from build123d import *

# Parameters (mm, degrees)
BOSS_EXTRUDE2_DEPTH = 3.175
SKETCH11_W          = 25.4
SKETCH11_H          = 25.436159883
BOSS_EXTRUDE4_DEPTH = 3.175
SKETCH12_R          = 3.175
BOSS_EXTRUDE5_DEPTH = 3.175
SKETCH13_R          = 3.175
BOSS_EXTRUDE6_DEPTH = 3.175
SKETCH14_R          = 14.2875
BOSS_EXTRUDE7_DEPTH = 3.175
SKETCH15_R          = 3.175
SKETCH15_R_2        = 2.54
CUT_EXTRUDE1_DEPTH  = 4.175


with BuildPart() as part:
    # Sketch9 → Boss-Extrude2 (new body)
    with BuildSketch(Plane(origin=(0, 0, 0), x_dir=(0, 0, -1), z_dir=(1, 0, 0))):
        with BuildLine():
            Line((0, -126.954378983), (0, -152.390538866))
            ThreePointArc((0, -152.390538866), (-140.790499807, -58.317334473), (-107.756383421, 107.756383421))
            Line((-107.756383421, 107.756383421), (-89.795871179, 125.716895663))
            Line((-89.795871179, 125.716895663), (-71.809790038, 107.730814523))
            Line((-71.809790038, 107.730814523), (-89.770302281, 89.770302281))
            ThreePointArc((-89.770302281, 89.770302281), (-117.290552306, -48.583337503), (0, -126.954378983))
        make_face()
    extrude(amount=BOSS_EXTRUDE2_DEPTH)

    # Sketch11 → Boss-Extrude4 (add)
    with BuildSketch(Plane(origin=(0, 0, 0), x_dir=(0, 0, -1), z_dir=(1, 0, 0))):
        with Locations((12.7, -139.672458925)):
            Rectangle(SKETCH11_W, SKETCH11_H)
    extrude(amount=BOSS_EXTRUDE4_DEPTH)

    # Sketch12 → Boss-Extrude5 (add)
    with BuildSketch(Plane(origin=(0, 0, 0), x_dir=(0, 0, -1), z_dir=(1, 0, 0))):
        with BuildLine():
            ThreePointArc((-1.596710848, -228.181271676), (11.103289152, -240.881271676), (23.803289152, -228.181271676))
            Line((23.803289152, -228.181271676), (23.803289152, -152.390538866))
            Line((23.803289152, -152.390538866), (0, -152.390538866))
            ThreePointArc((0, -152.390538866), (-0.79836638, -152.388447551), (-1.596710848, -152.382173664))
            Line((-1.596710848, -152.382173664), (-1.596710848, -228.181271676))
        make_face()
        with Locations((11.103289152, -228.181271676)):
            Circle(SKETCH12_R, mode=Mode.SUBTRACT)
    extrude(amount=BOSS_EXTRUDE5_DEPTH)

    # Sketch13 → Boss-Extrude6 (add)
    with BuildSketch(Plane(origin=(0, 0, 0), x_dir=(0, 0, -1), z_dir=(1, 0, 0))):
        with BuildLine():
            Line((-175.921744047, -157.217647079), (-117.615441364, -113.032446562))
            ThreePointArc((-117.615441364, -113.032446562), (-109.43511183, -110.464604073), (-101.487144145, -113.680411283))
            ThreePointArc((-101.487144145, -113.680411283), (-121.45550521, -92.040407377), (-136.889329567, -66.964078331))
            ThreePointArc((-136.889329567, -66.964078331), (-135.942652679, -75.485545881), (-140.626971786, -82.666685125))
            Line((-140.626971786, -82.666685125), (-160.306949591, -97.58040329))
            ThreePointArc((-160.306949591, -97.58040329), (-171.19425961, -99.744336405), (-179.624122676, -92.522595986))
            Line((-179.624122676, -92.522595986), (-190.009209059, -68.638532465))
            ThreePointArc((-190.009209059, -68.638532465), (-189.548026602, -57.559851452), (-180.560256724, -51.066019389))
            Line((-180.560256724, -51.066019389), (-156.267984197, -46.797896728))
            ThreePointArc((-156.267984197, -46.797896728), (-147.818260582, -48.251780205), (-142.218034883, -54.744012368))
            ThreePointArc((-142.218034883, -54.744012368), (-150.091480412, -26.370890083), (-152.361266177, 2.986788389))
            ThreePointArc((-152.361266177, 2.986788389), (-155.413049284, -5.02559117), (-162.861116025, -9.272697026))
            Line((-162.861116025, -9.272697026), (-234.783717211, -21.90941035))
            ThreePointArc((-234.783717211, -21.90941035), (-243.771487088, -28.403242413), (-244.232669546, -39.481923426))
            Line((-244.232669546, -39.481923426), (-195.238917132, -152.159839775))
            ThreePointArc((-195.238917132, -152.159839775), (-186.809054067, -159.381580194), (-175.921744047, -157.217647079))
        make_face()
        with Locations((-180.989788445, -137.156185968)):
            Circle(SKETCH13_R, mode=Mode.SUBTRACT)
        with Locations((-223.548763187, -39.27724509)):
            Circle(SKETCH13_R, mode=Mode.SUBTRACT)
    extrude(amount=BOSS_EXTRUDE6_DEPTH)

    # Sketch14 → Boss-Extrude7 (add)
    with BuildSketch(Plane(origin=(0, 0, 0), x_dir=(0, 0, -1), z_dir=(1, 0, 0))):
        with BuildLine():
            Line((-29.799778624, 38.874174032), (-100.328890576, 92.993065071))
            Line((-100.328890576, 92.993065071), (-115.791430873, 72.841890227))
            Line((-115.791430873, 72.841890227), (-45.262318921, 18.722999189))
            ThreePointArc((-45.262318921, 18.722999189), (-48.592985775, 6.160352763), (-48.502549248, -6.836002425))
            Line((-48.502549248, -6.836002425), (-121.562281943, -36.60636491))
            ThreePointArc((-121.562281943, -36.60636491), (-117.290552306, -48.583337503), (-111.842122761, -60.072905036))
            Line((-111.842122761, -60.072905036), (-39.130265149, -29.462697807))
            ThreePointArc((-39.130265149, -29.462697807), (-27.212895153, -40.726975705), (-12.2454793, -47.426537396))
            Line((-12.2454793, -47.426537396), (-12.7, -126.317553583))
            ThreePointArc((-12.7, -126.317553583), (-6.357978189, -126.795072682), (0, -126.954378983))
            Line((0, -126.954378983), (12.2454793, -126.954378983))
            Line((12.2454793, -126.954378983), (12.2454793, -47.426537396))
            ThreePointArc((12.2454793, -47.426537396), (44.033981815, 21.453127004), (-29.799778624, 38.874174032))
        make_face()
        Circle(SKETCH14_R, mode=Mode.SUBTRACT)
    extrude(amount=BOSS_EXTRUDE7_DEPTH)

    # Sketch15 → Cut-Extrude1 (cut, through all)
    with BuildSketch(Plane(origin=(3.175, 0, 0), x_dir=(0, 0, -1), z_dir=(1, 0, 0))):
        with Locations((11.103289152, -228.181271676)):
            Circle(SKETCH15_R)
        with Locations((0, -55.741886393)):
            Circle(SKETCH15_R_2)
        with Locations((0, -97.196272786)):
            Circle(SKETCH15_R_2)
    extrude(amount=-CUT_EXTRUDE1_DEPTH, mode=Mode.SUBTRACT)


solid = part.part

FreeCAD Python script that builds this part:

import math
import FreeCAD as App
import Part
import Sketcher
from FreeCAD import Vector
Q = App.Units.Quantity


def add_polygon(sketch, points):
    """Adds a closed chain of lines whose ends are joined by coincident constraints."""
    first, n = sketch.GeometryCount, len(points)
    for a, b in zip(points, points[1:] + points[:1]):
        sketch.addGeometry(Part.LineSegment(App.Vector(*a, 0), App.Vector(*b, 0)), False)
    for i in range(n):
        sketch.addConstraint(Sketcher.Constraint("Coincident", first + i, 2, first + (i + 1) % n, 1))

doc = App.newDocument("Part")
body = doc.addObject("PartDesign::Body", "Body")

# Sketch on YZ plane
sketch1 = body.newObject("Sketcher::SketchObject", "Sketch")
sketch1.AttachmentSupport = (doc.getObject("YZ_Plane"), [""])
sketch1.MapMode = "FlatFace"
sketch1.addGeometry([
    Part.LineSegment(Vector(-152, 0, 0), Vector(-127, 0, 0)),  # 0
    Part.ArcOfCircle(Part.Circle(Vector(0, 0, 0), Vector(0, 0, 1), 127), math.radians(45), math.radians(180)),  # 1
    Part.LineSegment(Vector(90, 90, 0), Vector(108, 72, 0)),  # 2
    Part.LineSegment(Vector(108, 72, 0), Vector(126, 90, 0)),  # 3
    Part.LineSegment(Vector(126, 90, 0), Vector(108, 108, 0)),  # 4
    Part.ArcOfCircle(Part.Circle(Vector(0, 0, 0), Vector(0, 0, 1), 152), math.radians(45), math.radians(180)),  # 5
], False)
sketch1.addConstraint([
    Sketcher.Constraint("Coincident", 0, 2, 1, 2),
    Sketcher.Constraint("Tangent", 1, 1, 2, 1),
    Sketcher.Constraint("Coincident", 2, 2, 3, 1),
    Sketcher.Constraint("Coincident", 3, 2, 4, 1),
    Sketcher.Constraint("Tangent", 4, 2, 5, 1),
    Sketcher.Constraint("Coincident", 5, 2, 0, 1),
    Sketcher.Constraint("Horizontal", 0),
    Sketcher.Constraint("Coincident", 1, 3, -1, 1),
    Sketcher.Constraint("Coincident", 5, 3, -1, 1),
    Sketcher.Constraint("PointOnObject", 0, 2, -1),
    Sketcher.Constraint("Perpendicular", 2, 3),
    Sketcher.Constraint("Perpendicular", 3, 4),
    Sketcher.Constraint("Distance", 2, Q("1 in")),
    Sketcher.Constraint("Angle", 2, Q("-45 deg")),
    Sketcher.Constraint("Radius", 1, 126.954379),
    Sketcher.Constraint("Radius", 5, 152.390539),
])
pad1 = body.newObject("PartDesign::Pad", "Pad")
pad1.Profile = sketch1
pad1.Length = Q("0.125 in")

# Sketch on YZ plane
sketch2 = body.newObject("Sketcher::SketchObject", "Sketch001")
sketch2.AttachmentSupport = (doc.getObject("YZ_Plane"), [""])
sketch2.MapMode = "FlatFace"
add_polygon(sketch2, [(-127, 0), (-152, 0), (-152, -25), (-127, -25)])  # lines 0-3
sketch2.addConstraint([
    Sketcher.Constraint("Horizontal", 0),
    Sketcher.Constraint("Vertical", 1),
    Sketcher.Constraint("Horizontal", 2),
    Sketcher.Constraint("Vertical", 3),
    Sketcher.Constraint("PointOnObject", 0, 2, -1),
    Sketcher.Constraint("DistanceY", 1, 2, 1, 1, Q("1 in")),
    Sketcher.Constraint("DistanceX", 0, 2, 0, 1, 25.43616),
    Sketcher.Constraint("DistanceX", 0, 2, -1, 1, 152.390539),
])
pad2 = body.newObject("PartDesign::Pad", "Pad001")
pad2.Profile = sketch2
pad2.Length = Q("0.125 in")

# Sketch on YZ plane
sketch3 = body.newObject("Sketcher::SketchObject", "Sketch002")
sketch3.AttachmentSupport = (doc.getObject("YZ_Plane"), [""])
sketch3.MapMode = "FlatFace"
sketch3.addGeometry([
    Part.ArcOfCircle(Part.Circle(Vector(-228.2, -11.1, 0), Vector(0, 0, 1), 12.7), math.radians(90), math.radians(270)),  # 0
    Part.LineSegment(Vector(-228.2, -23.8, 0), Vector(-152.4, -23.8, 0)),  # 1
    Part.LineSegment(Vector(-152.4, -23.8, 0), Vector(-152.4, 0, 0)),  # 2
    Part.ArcOfCircle(Part.Circle(Vector(0, 0, 0), Vector(0, 0, 1), 152.4), math.radians(179.4), math.radians(180)),  # 3
    Part.LineSegment(Vector(-152.4, 1.6, 0), Vector(-228.2, 1.6, 0)),  # 4
    Part.Circle(Vector(-228.2, -11.1, 0), Vector(0, 0, 1), 3.2),  # 5
], False)
sketch3.addConstraint([
    Sketcher.Constraint("Tangent", 0, 2, 1, 1),
    Sketcher.Constraint("Coincident", 1, 2, 2, 1),
    Sketcher.Constraint("Tangent", 2, 2, 3, 2),
    Sketcher.Constraint("Coincident", 3, 1, 4, 1),
    Sketcher.Constraint("Tangent", 4, 2, 0, 1),
    Sketcher.Constraint("Horizontal", 1),
    Sketcher.Constraint("Vertical", 2),
    Sketcher.Constraint("Horizontal", 4),
    Sketcher.Constraint("Coincident", 5, 3, 0, 3),
    Sketcher.Constraint("PointOnObject", 3, 3, -1),
    Sketcher.Constraint("Radius", 0, Q("0.5 in")),
    Sketcher.Constraint("Diameter", 5, Q("0.25 in")),
    Sketcher.Constraint("DistanceX", 4, 2, 4, 1, 75.799098),
    Sketcher.Constraint("Radius", 3, 152.390564),
    Sketcher.Constraint("DistanceY", 2, 1, 2, 2, 23.803289),
    Sketcher.Constraint("DistanceX", 0, 3, -1, 1, 228.181272),
])
pad3 = body.newObject("PartDesign::Pad", "Pad002")
pad3.Profile = sketch3
pad3.Length = Q("0.125 in")

# Sketch on YZ plane
sketch4 = body.newObject("Sketcher::SketchObject", "Sketch003")
sketch4.AttachmentSupport = (doc.getObject("YZ_Plane"), [""])
sketch4.MapMode = "FlatFace"
sketch4.addGeometry([
    Part.LineSegment(Vector(-157.2, 175.9, 0), Vector(-113, 117.6, 0)),  # 0
    Part.ArcOfCircle(Part.Circle(Vector(-123.2, 109.9, 0), Vector(0, 0, 1), 12.7), math.radians(-42), math.radians(37)),  # 1
    Part.ArcOfCircle(Part.Circle(Vector(0, 0, 0), Vector(0, 0, 1), 152.4), math.radians(116), math.radians(138)),  # 2
    Part.ArcOfCircle(Part.Circle(Vector(-72.5, 148.3, 0), Vector(0, 0, 1), 12.7), math.radians(-143), math.radians(-64)),  # 3
    Part.LineSegment(Vector(-82.7, 140.6, 0), Vector(-97.6, 160.3, 0)),  # 4
    Part.ArcOfCircle(Part.Circle(Vector(-87.5, 168, 0), Vector(0, 0, 1), 12.7), math.radians(113), math.radians(217)),  # 5
    Part.LineSegment(Vector(-92.5, 179.6, 0), Vector(-68.6, 190, 0)),  # 6
    Part.ArcOfCircle(Part.Circle(Vector(-63.6, 178.4, 0), Vector(0, 0, 1), 12.7), math.radians(10), math.radians(114)),  # 7
    Part.LineSegment(Vector(-51.1, 180.6, 0), Vector(-46.8, 156.3, 0)),  # 8
    Part.ArcOfCircle(Part.Circle(Vector(-59.3, 154.1, 0), Vector(0, 0, 1), 12.7), math.radians(-69), math.radians(10)),  # 9
    Part.ArcOfCircle(Part.Circle(Vector(0, 0, 0), Vector(0, 0, 1), 152.4), math.radians(89), math.radians(111)),  # 10
    Part.ArcOfCircle(Part.Circle(Vector(3.2, 165.1, 0), Vector(0, 0, 1), 12.7), math.radians(-170), math.radians(-91)),  # 11
    Part.LineSegment(Vector(-9.3, 162.9, 0), Vector(-21.9, 234.8, 0)),  # 12
    Part.ArcOfCircle(Part.Circle(Vector(-34.4, 232.6, 0), Vector(0, 0, 1), 12.7), math.radians(10), math.radians(113)),  # 13
    Part.LineSegment(Vector(-39.5, 244.2, 0), Vector(-152.2, 195.2, 0)),  # 14
    Part.ArcOfCircle(Part.Circle(Vector(-147.1, 183.6, 0), Vector(0, 0, 1), 12.7), math.radians(113), math.radians(217)),  # 15
    Part.Circle(Vector(-137.2, 181, 0), Vector(0, 0, 1), 3.2),  # 16
    Part.Circle(Vector(-39.3, 223.5, 0), Vector(0, 0, 1), 3.2),  # 17
], False)
sketch4.addConstraint([
    Sketcher.Constraint("Tangent", 0, 2, 1, 2),
    Sketcher.Constraint("Tangent", 1, 1, 2, 2),
    Sketcher.Constraint("Tangent", 2, 1, 3, 2),
    Sketcher.Constraint("Tangent", 3, 1, 4, 1),
    Sketcher.Constraint("Tangent", 4, 2, 5, 2),
    Sketcher.Constraint("Tangent", 5, 1, 6, 1),
    Sketcher.Constraint("Tangent", 6, 2, 7, 2),
    Sketcher.Constraint("Tangent", 7, 1, 8, 1),
    Sketcher.Constraint("Tangent", 8, 2, 9, 2),
    Sketcher.Constraint("Tangent", 9, 1, 10, 2),
    Sketcher.Constraint("Tangent", 10, 1, 11, 2),
    Sketcher.Constraint("Tangent", 11, 1, 12, 1),
    Sketcher.Constraint("Tangent", 12, 2, 13, 1),
    Sketcher.Constraint("Tangent", 13, 2, 14, 1),
    Sketcher.Constraint("Tangent", 14, 2, 15, 1),
    Sketcher.Constraint("Tangent", 15, 2, 0, 1),
    Sketcher.Constraint("Coincident", 2, 3, -1, 1),
    Sketcher.Constraint("Coincident", 10, 3, -1, 1),
    Sketcher.Constraint("Equal", 1, 3),
    Sketcher.Constraint("Equal", 3, 5),
    Sketcher.Constraint("Equal", 5, 7),
    Sketcher.Constraint("Equal", 7, 9),
    Sketcher.Constraint("Equal", 2, 10),
    Sketcher.Constraint("Equal", 9, 11),
    Sketcher.Constraint("Equal", 11, 13),
    Sketcher.Constraint("Equal", 13, 15),
    Sketcher.Constraint("Equal", 16, 17),
    Sketcher.Constraint("Parallel", 0, 4),
    Sketcher.Constraint("Parallel", 8, 12),
    Sketcher.Constraint("Parallel", 6, 14),
    Sketcher.Constraint("Radius", 1, Q("0.5 in")),
    Sketcher.Constraint("Diameter", 16, Q("0.25 in")),
    Sketcher.Constraint("Angle", 6, Q("23.5 deg")),
    Sketcher.Constraint("Radius", 2, 152.390539),
    Sketcher.Constraint("DistanceX", 9, 3, 11, 3, 62.542),
    Sketcher.Constraint("DistanceY", 3, 1, 9, 3, 13.443302),
    Sketcher.Constraint("DistanceX", 7, 3, 7, 1, 12.5084),
    Sketcher.Constraint("Distance", 0, 73.15707),
    Sketcher.Constraint("Distance", 4, 24.692519),
    Sketcher.Constraint("Distance", 12, 73.024291),
    Sketcher.Constraint("Distance", 14, 122.868632),
    Sketcher.Constraint("DistanceY", -1, 1, 1, 3, 109.944931),
    Sketcher.Constraint("DistanceY", -1, 1, 16, 3, 180.989788),
    Sketcher.Constraint("DistanceX", 15, 3, 16, 3, 9.939541),
    Sketcher.Constraint("DistanceX", 9, 3, 17, 3, 20.029052),
    Sketcher.Constraint("DistanceY", 9, 3, 17, 3, 69.47849),
])
pad4 = body.newObject("PartDesign::Pad", "Pad003")
pad4.Profile = sketch4
pad4.Length = Q("0.125 in")

# Sketch on YZ plane
sketch5 = body.newObject("Sketcher::SketchObject", "Sketch004")
sketch5.AttachmentSupport = (doc.getObject("YZ_Plane"), [""])
sketch5.MapMode = "FlatFace"
sketch5.addGeometry([
    Part.LineSegment(Vector(39, 30, 0), Vector(93, 100, 0)),  # 0
    Part.LineSegment(Vector(93, 100, 0), Vector(73, 116, 0)),  # 1
    Part.LineSegment(Vector(73, 116, 0), Vector(19, 45, 0)),  # 2
    Part.ArcOfCircle(Part.Circle(Vector(0, 0, 0), Vector(0, 0, 1), 49), math.radians(68), math.radians(98)),  # 3
    Part.LineSegment(Vector(-7, 49, 0), Vector(-37, 122, 0)),  # 4
    Part.ArcOfCircle(Part.Circle(Vector(0, 0, 0), Vector(0, 0, 1), 127), math.radians(106.76), math.radians(118.24)),  # 5
    Part.LineSegment(Vector(-60, 112, 0), Vector(-29, 39, 0)),  # 6
    Part.ArcOfCircle(Part.Circle(Vector(0, 0, 0), Vector(0, 0, 1), 49), math.radians(127), math.radians(166)),  # 7
    Part.LineSegment(Vector(-47, 12, 0), Vector(-126, 13, 0)),  # 8
    Part.ArcOfCircle(Part.Circle(Vector(0, 0, 0), Vector(0, 0, 1), 127), math.radians(174.26), math.radians(180)),  # 9
    Part.LineSegment(Vector(-127, 0, 0), Vector(-127, -12, 0)),  # 10
    Part.LineSegment(Vector(-127, -12, 0), Vector(-47, -12, 0)),  # 11
    Part.ArcOfCircle(Part.Circle(Vector(0, 0, 0), Vector(0, 0, 1), 49), math.radians(-166), math.radians(37)),  # 12
    Part.Circle(Vector(0, 0, 0), Vector(0, 0, 1), 14),  # 13
], False)
sketch5.addConstraint([
    Sketcher.Constraint("Coincident", 0, 2, 1, 1),
    Sketcher.Constraint("Coincident", 1, 2, 2, 1),
    Sketcher.Constraint("Coincident", 2, 2, 3, 1),
    Sketcher.Constraint("Coincident", 3, 2, 4, 1),
    Sketcher.Constraint("Coincident", 4, 2, 5, 1),
    Sketcher.Constraint("Coincident", 5, 2, 6, 1),
    Sketcher.Constraint("Coincident", 6, 2, 7, 1),
    Sketcher.Constraint("Coincident", 7, 2, 8, 1),
    Sketcher.Constraint("Coincident", 8, 2, 9, 1),
    Sketcher.Constraint("Tangent", 9, 2, 10, 1),
    Sketcher.Constraint("Coincident", 10, 2, 11, 1),
    Sketcher.Constraint("Coincident", 11, 2, 12, 1),
    Sketcher.Constraint("Coincident", 12, 2, 0, 1),
    Sketcher.Constraint("Vertical", 10),
    Sketcher.Constraint("Horizontal", 11),
    Sketcher.Constraint("Coincident", 3, 3, -1, 1),
    Sketcher.Constraint("Coincident", 5, 3, -1, 1),
    Sketcher.Constraint("Coincident", 7, 3, -1, 1),
    Sketcher.Constraint("Coincident", 9, 3, -1, 1),
    Sketcher.Constraint("Coincident", 12, 3, -1, 1),
    Sketcher.Constraint("Coincident", 13, 3, -1, 1),
    Sketcher.Constraint("Equal", 3, 7),
    Sketcher.Constraint("Equal", 5, 9),
    Sketcher.Constraint("Equal", 7, 12),
    Sketcher.Constraint("Perpendicular", 0, 1),
    Sketcher.Constraint("Perpendicular", 1, 2),
    Sketcher.Constraint("Vertical", 7, 2, 11, 2),
    Sketcher.Constraint("Equal", 0, 2),
    Sketcher.Constraint("Equal", 4, 6),
    Sketcher.Constraint("Equal", 6, 8),
    Sketcher.Constraint("Distance", 1, Q("1 in")),
    Sketcher.Constraint("Diameter", 13, Q("1.125 in")),
    Sketcher.Constraint("Distance", 0, Q("3.5 in")),
    Sketcher.Constraint("DistanceY", -1, 1, 8, 2, Q("0.5 in")),
    Sketcher.Constraint("Angle", 0, Q("52.5 deg")),
    Sketcher.Constraint("Radius", 5, 126.954379),
    Sketcher.Constraint("Radius", 3, 48.981917),
    Sketcher.Constraint("DistanceX", 11, 1, 11, 2, 79.527842),
    Sketcher.Constraint("DistanceX", 3, 2, 2, 2, 25.559002),
    Sketcher.Constraint("DistanceX", 5, 2, 4, 2, 23.46654),
])
pad5 = body.newObject("PartDesign::Pad", "Pad004")
pad5.Profile = sketch5
pad5.Length = Q("0.125 in")

# Sketch on YZ plane
sketch6 = body.newObject("Sketcher::SketchObject", "Sketch005")
sketch6.AttachmentSupport = (doc.getObject("YZ_Plane"), [""])
sketch6.MapMode = "FlatFace"
sketch6.AttachmentOffset = App.Placement(Vector(0, 0, 0.125 * 25.4), App.Rotation())
sketch6.addGeometry([
    Part.Circle(Vector(-228.2, -11.1, 0), Vector(0, 0, 1), 3.2),
    Part.Circle(Vector(-55.7, 0, 0), Vector(0, 0, 1), 2.5),
    Part.Circle(Vector(-97.2, 0, 0), Vector(0, 0, 1), 2.5),
], False)
sketch6.addConstraint([
    Sketcher.Constraint("Equal", 1, 2),
    Sketcher.Constraint("PointOnObject", 1, 3, -1),
    Sketcher.Constraint("PointOnObject", 2, 3, -1),
    Sketcher.Constraint("Diameter", 1, Q("0.2 in")),
    Sketcher.Constraint("Diameter", 0, Q("0.25 in")),
    Sketcher.Constraint("DistanceX", 0, 3, 2, 3, 130.984999),
    Sketcher.Constraint("DistanceX", 0, 3, -1, 1, 228.181272),
    Sketcher.Constraint("DistanceY", 0, 3, -1, 1, 11.103289),
    Sketcher.Constraint("DistanceX", 1, 3, -1, 1, 55.741886),
])
pocket1 = body.newObject("PartDesign::Pocket", "Pocket")
pocket1.Profile = sketch6
pocket1.Type = "ThroughAll"

doc.recompute()
